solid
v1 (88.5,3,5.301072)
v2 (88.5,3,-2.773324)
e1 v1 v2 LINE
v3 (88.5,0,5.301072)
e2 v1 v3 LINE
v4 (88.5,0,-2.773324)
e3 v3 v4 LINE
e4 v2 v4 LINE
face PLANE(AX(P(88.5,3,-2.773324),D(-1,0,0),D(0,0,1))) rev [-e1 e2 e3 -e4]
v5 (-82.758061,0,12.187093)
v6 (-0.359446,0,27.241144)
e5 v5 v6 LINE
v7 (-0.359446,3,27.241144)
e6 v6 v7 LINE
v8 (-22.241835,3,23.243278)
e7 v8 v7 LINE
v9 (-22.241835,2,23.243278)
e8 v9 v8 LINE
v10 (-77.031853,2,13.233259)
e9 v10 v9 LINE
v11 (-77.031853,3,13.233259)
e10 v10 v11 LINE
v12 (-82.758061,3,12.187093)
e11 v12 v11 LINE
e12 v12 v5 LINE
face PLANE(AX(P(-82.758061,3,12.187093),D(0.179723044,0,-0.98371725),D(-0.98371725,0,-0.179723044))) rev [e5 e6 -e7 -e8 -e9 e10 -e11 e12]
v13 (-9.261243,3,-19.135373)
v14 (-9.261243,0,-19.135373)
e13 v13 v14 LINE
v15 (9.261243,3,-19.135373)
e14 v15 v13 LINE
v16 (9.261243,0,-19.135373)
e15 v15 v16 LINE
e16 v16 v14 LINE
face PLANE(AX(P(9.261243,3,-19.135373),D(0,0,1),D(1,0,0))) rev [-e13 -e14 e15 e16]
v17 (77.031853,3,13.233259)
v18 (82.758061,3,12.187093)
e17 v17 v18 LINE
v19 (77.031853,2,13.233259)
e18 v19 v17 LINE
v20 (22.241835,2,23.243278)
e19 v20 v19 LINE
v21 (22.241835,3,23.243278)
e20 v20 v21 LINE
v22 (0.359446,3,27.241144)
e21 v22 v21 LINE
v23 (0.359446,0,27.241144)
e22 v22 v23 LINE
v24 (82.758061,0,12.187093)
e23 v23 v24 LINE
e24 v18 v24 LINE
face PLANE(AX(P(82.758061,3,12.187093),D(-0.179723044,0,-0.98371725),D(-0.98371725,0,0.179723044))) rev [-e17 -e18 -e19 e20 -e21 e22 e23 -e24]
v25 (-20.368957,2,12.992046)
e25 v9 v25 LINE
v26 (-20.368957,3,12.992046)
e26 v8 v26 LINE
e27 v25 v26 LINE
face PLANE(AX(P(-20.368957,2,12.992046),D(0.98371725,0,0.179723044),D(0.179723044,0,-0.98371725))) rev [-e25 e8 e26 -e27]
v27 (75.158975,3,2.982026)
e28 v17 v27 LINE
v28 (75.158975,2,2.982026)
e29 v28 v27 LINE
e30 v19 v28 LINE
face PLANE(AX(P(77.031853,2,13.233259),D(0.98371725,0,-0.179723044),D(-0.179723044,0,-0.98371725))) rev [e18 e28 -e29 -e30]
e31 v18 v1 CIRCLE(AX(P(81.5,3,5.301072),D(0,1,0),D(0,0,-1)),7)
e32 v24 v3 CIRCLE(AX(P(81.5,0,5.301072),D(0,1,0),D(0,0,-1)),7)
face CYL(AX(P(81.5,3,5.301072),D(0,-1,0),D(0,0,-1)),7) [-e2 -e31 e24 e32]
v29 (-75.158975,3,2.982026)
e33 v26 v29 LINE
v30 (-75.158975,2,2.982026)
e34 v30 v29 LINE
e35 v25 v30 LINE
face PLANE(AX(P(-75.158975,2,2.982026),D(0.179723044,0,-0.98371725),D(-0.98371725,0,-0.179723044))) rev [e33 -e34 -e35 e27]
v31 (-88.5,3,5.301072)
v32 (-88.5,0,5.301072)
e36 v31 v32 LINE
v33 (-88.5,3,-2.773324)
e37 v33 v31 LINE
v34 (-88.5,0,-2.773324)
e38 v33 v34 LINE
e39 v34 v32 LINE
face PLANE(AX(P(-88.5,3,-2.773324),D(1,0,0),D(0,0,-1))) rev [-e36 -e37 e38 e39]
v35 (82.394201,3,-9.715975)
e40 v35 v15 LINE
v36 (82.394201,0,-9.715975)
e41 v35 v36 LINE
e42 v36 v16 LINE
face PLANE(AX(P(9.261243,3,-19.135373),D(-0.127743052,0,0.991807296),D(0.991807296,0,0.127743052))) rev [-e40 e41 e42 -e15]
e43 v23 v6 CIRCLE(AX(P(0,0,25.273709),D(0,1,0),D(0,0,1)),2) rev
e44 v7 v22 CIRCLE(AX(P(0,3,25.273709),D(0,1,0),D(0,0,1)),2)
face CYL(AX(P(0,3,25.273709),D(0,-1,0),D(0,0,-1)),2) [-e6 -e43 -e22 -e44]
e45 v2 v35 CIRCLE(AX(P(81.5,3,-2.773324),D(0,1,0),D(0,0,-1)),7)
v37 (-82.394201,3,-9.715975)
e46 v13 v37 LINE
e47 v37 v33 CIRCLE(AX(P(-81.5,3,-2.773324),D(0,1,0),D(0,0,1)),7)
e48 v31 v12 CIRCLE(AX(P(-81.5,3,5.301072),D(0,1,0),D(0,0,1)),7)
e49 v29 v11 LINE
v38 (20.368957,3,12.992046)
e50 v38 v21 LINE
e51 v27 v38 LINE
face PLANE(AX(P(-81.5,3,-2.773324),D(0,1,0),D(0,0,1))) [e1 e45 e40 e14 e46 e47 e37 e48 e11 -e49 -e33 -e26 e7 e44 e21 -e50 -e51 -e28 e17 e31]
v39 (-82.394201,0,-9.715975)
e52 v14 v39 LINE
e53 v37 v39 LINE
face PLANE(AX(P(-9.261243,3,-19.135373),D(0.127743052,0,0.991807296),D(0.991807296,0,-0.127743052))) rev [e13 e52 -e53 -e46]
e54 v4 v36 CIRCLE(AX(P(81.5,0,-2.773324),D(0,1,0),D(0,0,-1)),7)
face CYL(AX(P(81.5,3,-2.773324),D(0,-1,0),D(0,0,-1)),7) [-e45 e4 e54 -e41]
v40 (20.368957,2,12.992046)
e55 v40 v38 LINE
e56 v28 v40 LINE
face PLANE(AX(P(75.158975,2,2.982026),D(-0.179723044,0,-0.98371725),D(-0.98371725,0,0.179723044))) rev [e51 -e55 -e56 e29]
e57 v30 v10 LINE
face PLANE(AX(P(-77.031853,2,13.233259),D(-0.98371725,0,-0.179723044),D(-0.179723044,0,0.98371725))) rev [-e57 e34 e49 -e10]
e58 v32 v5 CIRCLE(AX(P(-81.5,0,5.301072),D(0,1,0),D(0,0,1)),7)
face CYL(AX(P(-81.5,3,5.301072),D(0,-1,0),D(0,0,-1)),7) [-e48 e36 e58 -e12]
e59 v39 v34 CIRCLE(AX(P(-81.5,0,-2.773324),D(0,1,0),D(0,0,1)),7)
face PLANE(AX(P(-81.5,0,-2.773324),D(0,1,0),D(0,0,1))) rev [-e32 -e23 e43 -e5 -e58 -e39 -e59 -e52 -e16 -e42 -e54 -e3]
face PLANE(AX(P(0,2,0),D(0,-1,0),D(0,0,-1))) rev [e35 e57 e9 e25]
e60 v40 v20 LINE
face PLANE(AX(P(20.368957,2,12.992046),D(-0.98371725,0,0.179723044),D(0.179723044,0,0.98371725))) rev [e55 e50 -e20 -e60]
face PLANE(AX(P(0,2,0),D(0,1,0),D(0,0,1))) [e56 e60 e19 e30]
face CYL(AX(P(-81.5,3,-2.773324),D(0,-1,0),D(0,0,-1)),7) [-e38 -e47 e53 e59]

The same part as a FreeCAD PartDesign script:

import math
import FreeCAD as App
import Part
import Sketcher
from FreeCAD import Vector


def edges_at(feature, points):
    """Names of the edges that pass closest to the given points."""
    edges = feature.Shape.Edges
    near = lambda p: min(range(len(edges)), key=lambda i: edges[i].distToShape(Part.Vertex(*p))[0])
    return sorted({f"Edge{near(p) + 1}" for p in points})


def add_polygon(sketch, points):
    """Adds a closed chain of lines whose ends are joined by coincident constraints."""
    first, n = sketch.GeometryCount, len(points)
    for a, b in zip(points, points[1:] + points[:1]):
        sketch.addGeometry(Part.LineSegment(App.Vector(*a, 0), App.Vector(*b, 0)), False)
    for i in range(n):
        sketch.addConstraint(Sketcher.Constraint("Coincident", first + i, 2, first + (i + 1) % n, 1))

doc = App.newDocument("Part")
body = doc.addObject("PartDesign::Body", "Body")

# Sketch on XZ plane
sketch1 = body.newObject("Sketcher::SketchObject", "Sketch")
sketch1.AttachmentSupport = (doc.getObject("XZ_Plane"), [""])
sketch1.MapMode = "FlatFace"
sketch1.addGeometry(Part.LineSegment(Vector(9, -19, 0), Vector(-9, -19, 0)), False)
sketch1.addGeometry(Part.LineSegment(Vector(-9, -19, 0), Vector(-82, -10, 0)), False)
sketch1.addGeometry(Part.ArcOfCircle(Part.Circle(Vector(-82, -3, 0), Vector(0, 0, 1), 7), math.radians(180), math.radians(263)), False)
sketch1.addGeometry(Part.LineSegment(Vector(-88, -3, 0), Vector(-88, 5, 0)), False)
sketch1.addGeometry(Part.ArcOfCircle(Part.Circle(Vector(-82, 5, 0), Vector(0, 0, 1), 7), math.radians(100), math.radians(180)), False)
sketch1.addGeometry(Part.LineSegment(Vector(-83, 12, 0), Vector(0, 27, 0)), False)
sketch1.addGeometry(Part.LineSegment(Vector(0, 27, 0), Vector(83, 12, 0)), False)
sketch1.addGeometry(Part.ArcOfCircle(Part.Circle(Vector(82, 5, 0), Vector(0, 0, 1), 7), math.radians(0), math.radians(80)), False)
sketch1.addGeometry(Part.LineSegment(Vector(88, 5, 0), Vector(88, -3, 0)), False)
sketch1.addGeometry(Part.ArcOfCircle(Part.Circle(Vector(82, -3, 0), Vector(0, 0, 1), 7), math.radians(-83), math.radians(0)), False)
sketch1.addGeometry(Part.LineSegment(Vector(82, -10, 0), Vector(9, -19, 0)), False)
sketch1.addConstraint(Sketcher.Constraint("Coincident", 0, 2, 1, 1))
sketch1.addConstraint(Sketcher.Constraint("Tangent", 1, 2, 2, 2))
sketch1.addConstraint(Sketcher.Constraint("Tangent", 2, 1, 3, 1))
sketch1.addConstraint(Sketcher.Constraint("Tangent", 3, 2, 4, 2))
sketch1.addConstraint(Sketcher.Constraint("Tangent", 4, 1, 5, 1))
sketch1.addConstraint(Sketcher.Constraint("Coincident", 5, 2, 6, 1))
sketch1.addConstraint(Sketcher.Constraint("Tangent", 6, 2, 7, 2))
sketch1.addConstraint(Sketcher.Constraint("Tangent", 7, 1, 8, 1))
sketch1.addConstraint(Sketcher.Constraint("Tangent", 8, 2, 9, 2))
sketch1.addConstraint(Sketcher.Constraint("Tangent", 9, 1, 10, 1))
sketch1.addConstraint(Sketcher.Constraint("Coincident", 10, 2, 0, 1))
sketch1.addConstraint(Sketcher.Constraint("Horizontal", 0))
sketch1.addConstraint(Sketcher.Constraint("Vertical", 3))
sketch1.addConstraint(Sketcher.Constraint("Vertical", 8))
sketch1.addConstraint(Sketcher.Constraint("Equal", 2, 4))
sketch1.addConstraint(Sketcher.Constraint("Equal", 4, 7))
sketch1.addConstraint(Sketcher.Constraint("Equal", 7, 9))
sketch1.addConstraint(Sketcher.Constraint("Symmetric", 4, 3, 7, 3, -2))
sketch1.addConstraint(Sketcher.Constraint("Symmetric", 1, 2, 9, 1, -2))
sketch1.addConstraint(Sketcher.Constraint("PointOnObject", 5, 2, -2))
sketch1.addConstraint(Sketcher.Constraint("Radius", 2, 7.0))
sketch1.addConstraint(Sketcher.Constraint("DistanceX", 4, 3, 7, 3, 163.0))
sketch1.addConstraint(Sketcher.Constraint("DistanceX", 1, 2, -1, 1, 82.394201))
sketch1.addConstraint(Sketcher.Constraint("DistanceX", 0, 2, 0, 1, 18.522486))
sketch1.addConstraint(Sketcher.Constraint("DistanceY", 3, 1, 3, 2, 8.074396))
sketch1.addConstraint(Sketcher.Constraint("DistanceY", -1, 1, 4, 3, 5.301072))
sketch1.addConstraint(Sketcher.Constraint("DistanceX", 4, 1, -1, 1, 82.758061))
pad1 = body.newObject("PartDesign::Pad", "Pad")
pad1.Profile = sketch1
pad1.Length = 3
pad1.Reversed = True
doc.recompute()

fillet = body.newObject("PartDesign::Fillet", "Fillet")
fillet.Base = (pad1, edges_at(pad1, [(0, 1.5, 27.307)]))
fillet.Radius = 2

# Sketch on XZ plane
sketch2 = body.newObject("Sketcher::SketchObject", "Sketch001")
sketch2.AttachmentSupport = (doc.getObject("XZ_Plane"), [""])
sketch2.MapMode = "FlatFace"
sketch2.AttachmentOffset = App.Placement(Vector(0, 0, -3), App.Rotation())
add_polygon(sketch2, [(-75, 3), (-77, 13), (-22, 23), (-20, 13)])  # lines 0-3
add_polygon(sketch2, [(20, 13), (22, 23), (77, 13), (75, 3)])  # lines 4-7
sketch2.addConstraint(Sketcher.Constraint("Symmetric", 1, 2, 4, 2, -2))
sketch2.addConstraint(Sketcher.Constraint("Symmetric", 0, 2, 5, 2, -2))
sketch2.addConstraint(Sketcher.Constraint("Symmetric", 3, 2, 6, 2, -2))
sketch2.addConstraint(Sketcher.Constraint("Symmetric", 2, 2, 7, 2, -2))
sketch2.addConstraint(Sketcher.Constraint("Perpendicular", 0, 1))
sketch2.addConstraint(Sketcher.Constraint("Perpendicular", 1, 2))
sketch2.addConstraint(Sketcher.Constraint("Perpendicular", 2, 3))
sketch2.addConstraint(Sketcher.Constraint("DistanceY", -1, 1, 0, 2, 13.233259))
sketch2.addConstraint(Sketcher.Constraint("DistanceY", -1, 1, 1, 2, 23.243278))
sketch2.addConstraint(Sketcher.Constraint("DistanceX", 0, 2, 1, 2, 54.790018))
sketch2.addConstraint(Sketcher.Constraint("DistanceX", 1, 2, 2, 2, 1.872878))
sketch2.addConstraint(Sketcher.Constraint("DistanceX", 1, 2, 4, 2, 44.483671))
pocket1 = body.newObject("PartDesign::Pocket", "Pocket")
pocket1.Profile = sketch2
pocket1.Length = 1
pocket1.Reversed = True

doc.recompute()
